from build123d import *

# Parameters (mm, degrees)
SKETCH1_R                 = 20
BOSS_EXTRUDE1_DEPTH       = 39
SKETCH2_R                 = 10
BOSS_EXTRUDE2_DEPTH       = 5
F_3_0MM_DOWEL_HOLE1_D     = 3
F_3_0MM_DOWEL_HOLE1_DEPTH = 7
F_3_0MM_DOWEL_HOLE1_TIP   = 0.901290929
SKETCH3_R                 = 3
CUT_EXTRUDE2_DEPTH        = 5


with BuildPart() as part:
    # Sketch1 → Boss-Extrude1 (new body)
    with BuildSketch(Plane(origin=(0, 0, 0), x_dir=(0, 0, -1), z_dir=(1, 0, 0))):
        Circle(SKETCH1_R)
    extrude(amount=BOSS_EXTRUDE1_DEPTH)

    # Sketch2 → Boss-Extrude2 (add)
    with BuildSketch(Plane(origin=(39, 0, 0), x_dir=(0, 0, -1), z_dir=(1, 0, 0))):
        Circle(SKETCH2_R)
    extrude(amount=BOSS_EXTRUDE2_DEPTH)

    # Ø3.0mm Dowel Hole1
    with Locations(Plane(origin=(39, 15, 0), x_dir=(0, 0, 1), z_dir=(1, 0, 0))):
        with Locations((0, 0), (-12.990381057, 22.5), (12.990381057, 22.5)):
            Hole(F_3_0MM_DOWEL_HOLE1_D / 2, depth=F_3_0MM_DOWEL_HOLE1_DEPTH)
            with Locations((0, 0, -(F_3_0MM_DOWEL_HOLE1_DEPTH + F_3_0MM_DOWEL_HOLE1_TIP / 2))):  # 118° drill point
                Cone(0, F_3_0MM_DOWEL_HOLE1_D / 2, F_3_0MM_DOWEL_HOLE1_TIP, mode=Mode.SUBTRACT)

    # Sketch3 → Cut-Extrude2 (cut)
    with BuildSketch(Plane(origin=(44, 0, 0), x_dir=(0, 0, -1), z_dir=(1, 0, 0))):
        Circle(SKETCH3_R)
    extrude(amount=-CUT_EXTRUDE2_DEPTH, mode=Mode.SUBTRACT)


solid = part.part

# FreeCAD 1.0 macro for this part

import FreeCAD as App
import Part
import Sketcher

V = App.Vector
Q = App.Units.Quantity

doc = App.newDocument("Part")
body = doc.addObject("PartDesign::Body", "Body")

# Sketch on YZ plane
sketch1 = doc.addObject("Sketcher::SketchObject", "Sketch")
body.addObject(sketch1)
sketch1.AttachmentSupport = (doc.YZ_Plane, [""])
sketch1.MapMode = "FlatFace"
sketch1.addGeometry(Part.Circle(V(0, 0, 0), V(0, 0, 1), 20), False)
sketch1.addConstraint([
    Sketcher.Constraint("Coincident", 0, 3, -1, 1),
    Sketcher.Constraint("Diameter", 0, Q("40 mm")),
])
pad1 = doc.addObject("PartDesign::Pad", "Pad")
body.addObject(pad1)
pad1.Profile = sketch1
pad1.Length = 39

# Sketch on YZ plane
sketch2 = doc.addObject("Sketcher::SketchObject", "Sketch001")
body.addObject(sketch2)
sketch2.AttachmentSupport = (doc.YZ_Plane, [""])
sketch2.MapMode = "FlatFace"
sketch2.AttachmentOffset = App.Placement(V(0, 0, 39), App.Rotation())
sketch2.addGeometry(Part.Circle(V(0, 0, 0), V(0, 0, 1), 10), False)
sketch2.addConstraint([
    Sketcher.Constraint("Coincident", 0, 3, -1, 1),
    Sketcher.Constraint("Diameter", 0, Q("20 mm")),
])
pad2 = doc.addObject("PartDesign::Pad", "Pad001")
body.addObject(pad2)
pad2.Profile = sketch2
pad2.Length = 5

# Sketch on YZ plane
sketch3 = doc.addObject("Sketcher::SketchObject", "Sketch002")
body.addObject(sketch3)
sketch3.AttachmentSupport = (doc.YZ_Plane, [""])
sketch3.MapMode = "FlatFace"
sketch3.AttachmentOffset = App.Placement(V(0, 0, 39), App.Rotation())
sketch3.addGeometry([
    Part.Circle(V(15, 0, 0), V(0, 0, 1), 1.5),
    Part.Circle(V(-7.5, -13, 0), V(0, 0, 1), 1.5),
    Part.Circle(V(-7.5, 13, 0), V(0, 0, 1), 1.5),
], False)
sketch3.addConstraint([
    Sketcher.Constraint("Equal", 0, 1),
    Sketcher.Constraint("Equal", 1, 2),
    Sketcher.Constraint("Symmetric", 1, 3, 2, 3, -1),
    Sketcher.Constraint("PointOnObject", 0, 3, -1),
    Sketcher.Constraint("Diameter", 0, Q("3 mm")),
    Sketcher.Constraint("DistanceX", -1, 1, 0, 3, Q("15 mm")),
    Sketcher.Constraint("DistanceX", 1, 3, -1, 1, Q("7.5 mm")),
    Sketcher.Constraint("DistanceY", 1, 3, -1, 1, Q("12.990381 mm")),
])
doc.recompute()
hole = doc.addObject("PartDesign::Hole", "Hole")
body.addObject(hole)
hole.Profile = sketch3
hole.ThreadType = "None"
hole.Diameter = 3
hole.DepthType = "Dimension"
hole.Depth = 7
hole.DrillPoint = "Angled"
hole.DrillPointAngle = 118

# Sketch on YZ plane
sketch4 = doc.addObject("Sketcher::SketchObject", "Sketch003")
body.addObject(sketch4)
sketch4.AttachmentSupport = (doc.YZ_Plane, [""])
sketch4.MapMode = "FlatFace"
sketch4.AttachmentOffset = App.Placement(V(0, 0, 44), App.Rotation())
sketch4.addGeometry(Part.Circle(V(0, 0, 0), V(0, 0, 1), 3), False)
sketch4.addConstraint([
    Sketcher.Constraint("Coincident", 0, 3, -1, 1),
    Sketcher.Constraint("Diameter", 0, Q("6 mm")),
])
pocket1 = doc.addObject("PartDesign::Pocket", "Pocket")
body.addObject(pocket1)
pocket1.Profile = sketch4
pocket1.Length = 5

doc.recompute()
